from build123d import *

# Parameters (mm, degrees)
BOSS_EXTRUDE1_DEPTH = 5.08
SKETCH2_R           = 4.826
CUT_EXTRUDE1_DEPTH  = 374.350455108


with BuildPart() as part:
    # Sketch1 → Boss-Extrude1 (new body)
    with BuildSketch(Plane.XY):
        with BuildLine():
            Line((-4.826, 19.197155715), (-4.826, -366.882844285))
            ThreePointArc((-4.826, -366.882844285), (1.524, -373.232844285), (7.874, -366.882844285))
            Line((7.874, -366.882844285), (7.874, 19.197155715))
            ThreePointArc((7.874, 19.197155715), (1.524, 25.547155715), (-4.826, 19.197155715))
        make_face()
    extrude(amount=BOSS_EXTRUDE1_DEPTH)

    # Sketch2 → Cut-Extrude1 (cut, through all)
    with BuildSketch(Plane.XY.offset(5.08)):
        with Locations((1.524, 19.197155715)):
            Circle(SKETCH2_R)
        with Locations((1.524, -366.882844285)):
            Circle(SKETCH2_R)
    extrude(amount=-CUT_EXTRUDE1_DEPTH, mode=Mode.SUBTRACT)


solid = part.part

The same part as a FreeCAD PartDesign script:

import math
import FreeCAD as App
import Part
import Sketcher
Q = App.Units.Quantity

doc = App.newDocument("Part")
body = doc.addObject("PartDesign::Body", "Body")

# Sketch on XY plane
sketch1 = body.newObject("Sketcher::SketchObject", "Sketch")
sketch1.AttachmentSupport = (doc.getObject("XY_Plane"), [""])
sketch1.MapMode = "FlatFace"
sketch1.addGeometry([
    Part.LineSegment(App.Vector(-4.826, 19.197156, 0), App.Vector(-4.826, -366.882844, 0)),
    Part.ArcOfCircle(Part.Circle(App.Vector(1.524, -366.882844, 0), App.Vector(0, 0, 1), 6.35), math.radians(180), math.radians(360)),
    Part.LineSegment(App.Vector(7.874, -366.882844, 0), App.Vector(7.874, 19.197156, 0)),
    Part.ArcOfCircle(Part.Circle(App.Vector(1.524, 19.197156, 0), App.Vector(0, 0, 1), 6.35), math.radians(0), math.radians(180)),
], False)
sketch1.addConstraint([
    Sketcher.Constraint("Tangent", 0, 2, 1, 1),
    Sketcher.Constraint("Tangent", 1, 2, 2, 1),
    Sketcher.Constraint("Tangent", 2, 2, 3, 1),
    Sketcher.Constraint("Tangent", 3, 2, 0, 1),
    Sketcher.Constraint("Vertical", 0),
    Sketcher.Constraint("Vertical", 2),
    Sketcher.Constraint("Radius", 1, Q("0.25 in")),
    Sketcher.Constraint("DistanceY", 0, 2, 0, 1, Q("15.2 in")),
    Sketcher.Constraint("DistanceX", -1, 1, 1, 3, Q("0.06 in")),
    Sketcher.Constraint("DistanceY", 1, 3, -1, 1, Q("366.882844 mm")),
])
pad1 = body.newObject("PartDesign::Pad", "Pad")
pad1.Profile = sketch1
pad1.Length = Q("0.2 in")

# Sketch on XY plane
sketch2 = body.newObject("Sketcher::SketchObject", "Sketch001")
sketch2.AttachmentSupport = (doc.getObject("XY_Plane"), [""])
sketch2.MapMode = "FlatFace"
sketch2.AttachmentOffset = App.Placement(App.Vector(0, 0, 0.2 * 25.4), App.Rotation())
sketch2.addGeometry([
    Part.Circle(App.Vector(1.524, 19.197156, 0), App.Vector(0, 0, 1), 4.826),
    Part.Circle(App.Vector(1.524, -366.882844, 0), App.Vector(0, 0, 1), 4.826),
], False)
sketch2.addConstraint([
    Sketcher.Constraint("Equal", 0, 1),
    Sketcher.Constraint("Vertical", 0, 3, 1, 3),
    Sketcher.Constraint("Diameter", 0, Q("0.38 in")),
    Sketcher.Constraint("DistanceY", 1, 3, 0, 3, Q("15.2 in")),
    Sketcher.Constraint("DistanceX", -1, 1, 0, 3, Q("0.06 in")),
    Sketcher.Constraint("DistanceY", -1, 1, 0, 3, Q("19.197156 mm")),
])
pocket1 = body.newObject("PartDesign::Pocket", "Pocket")
pocket1.Profile = sketch2
pocket1.Type = "ThroughAll"

doc.recompute()
